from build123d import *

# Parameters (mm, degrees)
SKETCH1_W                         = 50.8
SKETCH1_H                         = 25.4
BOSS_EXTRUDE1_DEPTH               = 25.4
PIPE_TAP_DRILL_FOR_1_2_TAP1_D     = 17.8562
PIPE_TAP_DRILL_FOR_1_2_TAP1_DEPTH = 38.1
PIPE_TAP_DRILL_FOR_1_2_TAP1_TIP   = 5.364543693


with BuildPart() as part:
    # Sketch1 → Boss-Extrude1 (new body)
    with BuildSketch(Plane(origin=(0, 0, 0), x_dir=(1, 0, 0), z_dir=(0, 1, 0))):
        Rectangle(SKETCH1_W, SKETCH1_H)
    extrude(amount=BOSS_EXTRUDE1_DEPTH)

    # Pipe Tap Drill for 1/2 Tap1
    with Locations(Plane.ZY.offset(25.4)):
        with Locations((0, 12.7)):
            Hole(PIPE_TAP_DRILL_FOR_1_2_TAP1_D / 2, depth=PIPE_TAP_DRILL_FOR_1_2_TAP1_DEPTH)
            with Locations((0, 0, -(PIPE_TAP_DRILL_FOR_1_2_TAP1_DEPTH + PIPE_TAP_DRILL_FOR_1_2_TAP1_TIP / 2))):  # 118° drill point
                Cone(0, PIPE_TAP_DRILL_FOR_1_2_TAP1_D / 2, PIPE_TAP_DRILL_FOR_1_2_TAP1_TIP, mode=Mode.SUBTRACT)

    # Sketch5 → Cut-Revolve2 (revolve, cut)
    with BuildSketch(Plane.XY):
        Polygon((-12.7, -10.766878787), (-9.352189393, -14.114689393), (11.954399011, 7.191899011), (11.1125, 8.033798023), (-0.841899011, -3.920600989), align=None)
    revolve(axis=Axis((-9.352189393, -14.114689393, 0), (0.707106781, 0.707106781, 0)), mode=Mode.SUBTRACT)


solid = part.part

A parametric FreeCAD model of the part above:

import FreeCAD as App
import Part
import Sketcher

V = App.Vector
Q = App.Units.Quantity


def add_polygon(sketch, points):
    """Adds a closed chain of lines whose ends are joined by coincident constraints."""
    first, n = sketch.GeometryCount, len(points)
    for a, b in zip(points, points[1:] + points[:1]):
        sketch.addGeometry(Part.LineSegment(App.Vector(*a, 0), App.Vector(*b, 0)), False)
    for i in range(n):
        sketch.addConstraint(Sketcher.Constraint("Coincident", first + i, 2, first + (i + 1) % n, 1))

doc = App.newDocument("Part")
body = doc.addObject("PartDesign::Body", "Body")

sketch1 = body.newObject("Sketcher::SketchObject", "Sketch")
sketch1.AttachmentSupport = (doc.getObject("XZ_Plane"), [""])
sketch1.MapMode = "FlatFace"
add_polygon(sketch1, [(-25, -13), (-25, 13), (25, 13), (25, -13)])
sketch1.addConstraint(Sketcher.Constraint("Vertical", 0))
sketch1.addConstraint(Sketcher.Constraint("Horizontal", 1))
sketch1.addConstraint(Sketcher.Constraint("Vertical", 2))
sketch1.addConstraint(Sketcher.Constraint("Horizontal", 3))
sketch1.addConstraint(Sketcher.Constraint("Symmetric", 0, 2, 2, 2, -1, 1))
sketch1.addConstraint(Sketcher.Constraint("DistanceX", 1, 1, 1, 2, Q("2 in")))
sketch1.addConstraint(Sketcher.Constraint("DistanceY", 0, 1, 0, 2, Q("1 in")))
pad1 = body.newObject("PartDesign::Pad", "Pad")
pad1.Profile = sketch1
pad1.Length = Q("1 in")
pad1.Reversed = True

sketch2 = body.newObject("Sketcher::SketchObject", "Sketch001")
sketch2.AttachmentSupport = (doc.getObject("YZ_Plane"), [""])
sketch2.MapMode = "FlatFace"
sketch2.AttachmentOffset = App.Placement(V(0, 0, -1 * 25.4), App.Rotation())
sketch2.addGeometry(Part.Circle(V(13, 0, 0), V(0, 0, 1), 9), False)
sketch2.addConstraint(Sketcher.Constraint("PointOnObject", 0, 3, -1))
sketch2.addConstraint(Sketcher.Constraint("Diameter", 0, Q("0.703 in")))
sketch2.addConstraint(Sketcher.Constraint("DistanceX", -1, 1, 0, 3, Q("0.5 in")))
doc.recompute()
hole = body.newObject("PartDesign::Hole", "Hole")
hole.Profile = sketch2
hole.ThreadType = "None"
hole.Diameter = Q("0.703 in")
hole.DepthType = "Dimension"
hole.Depth = Q("1.5 in")
hole.DrillPoint = "Angled"
hole.DrillPointAngle = 118
hole.Reversed = True

sketch3 = body.newObject("Sketcher::SketchObject", "Sketch002")
sketch3.AttachmentSupport = (doc.getObject("XY_Plane"), [""])
sketch3.MapMode = "FlatFace"
add_polygon(sketch3, [(-12.7, -10.8), (-9.4, -14.1), (12, 7.2), (11.1, 8), (-0.8, -3.9)])
sketch3.addGeometry(Part.LineSegment(V(-9.4, -14.1, 0), V(12, 7.2, 0)), True)
sketch3.addConstraint(Sketcher.Constraint("Coincident", 5, 1, 0, 2))
sketch3.addConstraint(Sketcher.Constraint("Coincident", 5, 2, 1, 2))
sketch3.addConstraint(Sketcher.Constraint("Perpendicular", 0, 1))
sketch3.addConstraint(Sketcher.Constraint("Perpendicular", 1, 2))
sketch3.addConstraint(Sketcher.Constraint("Perpendicular", 2, 3))
sketch3.addConstraint(Sketcher.Constraint("Angle", 0, Q("-45 deg")))
sketch3.addConstraint(Sketcher.Constraint("Angle", 4, Q("-150 deg")))
sketch3.addConstraint(Sketcher.Constraint("DistanceX", 4, 2, -1, 1, Q("0.5 in")))
sketch3.addConstraint(Sketcher.Constraint("Distance", 2, Q("0.046875 in")))
sketch3.addConstraint(Sketcher.Constraint("DistanceX", -1, 1, 2, 2, Q("0.4375 in")))
sketch3.addConstraint(Sketcher.Constraint("DistanceY", 3, 2, 1, 2, Q("0.4375 in")))
sketch3.addConstraint(Sketcher.Constraint("DistanceY", -1, 1, 1, 2, 7.191899))
groove = body.newObject("PartDesign::Groove", "Groove")
groove.Profile = sketch3
groove.ReferenceAxis = (sketch3, ["Axis0"])
groove.Angle = 360

doc.recompute()
